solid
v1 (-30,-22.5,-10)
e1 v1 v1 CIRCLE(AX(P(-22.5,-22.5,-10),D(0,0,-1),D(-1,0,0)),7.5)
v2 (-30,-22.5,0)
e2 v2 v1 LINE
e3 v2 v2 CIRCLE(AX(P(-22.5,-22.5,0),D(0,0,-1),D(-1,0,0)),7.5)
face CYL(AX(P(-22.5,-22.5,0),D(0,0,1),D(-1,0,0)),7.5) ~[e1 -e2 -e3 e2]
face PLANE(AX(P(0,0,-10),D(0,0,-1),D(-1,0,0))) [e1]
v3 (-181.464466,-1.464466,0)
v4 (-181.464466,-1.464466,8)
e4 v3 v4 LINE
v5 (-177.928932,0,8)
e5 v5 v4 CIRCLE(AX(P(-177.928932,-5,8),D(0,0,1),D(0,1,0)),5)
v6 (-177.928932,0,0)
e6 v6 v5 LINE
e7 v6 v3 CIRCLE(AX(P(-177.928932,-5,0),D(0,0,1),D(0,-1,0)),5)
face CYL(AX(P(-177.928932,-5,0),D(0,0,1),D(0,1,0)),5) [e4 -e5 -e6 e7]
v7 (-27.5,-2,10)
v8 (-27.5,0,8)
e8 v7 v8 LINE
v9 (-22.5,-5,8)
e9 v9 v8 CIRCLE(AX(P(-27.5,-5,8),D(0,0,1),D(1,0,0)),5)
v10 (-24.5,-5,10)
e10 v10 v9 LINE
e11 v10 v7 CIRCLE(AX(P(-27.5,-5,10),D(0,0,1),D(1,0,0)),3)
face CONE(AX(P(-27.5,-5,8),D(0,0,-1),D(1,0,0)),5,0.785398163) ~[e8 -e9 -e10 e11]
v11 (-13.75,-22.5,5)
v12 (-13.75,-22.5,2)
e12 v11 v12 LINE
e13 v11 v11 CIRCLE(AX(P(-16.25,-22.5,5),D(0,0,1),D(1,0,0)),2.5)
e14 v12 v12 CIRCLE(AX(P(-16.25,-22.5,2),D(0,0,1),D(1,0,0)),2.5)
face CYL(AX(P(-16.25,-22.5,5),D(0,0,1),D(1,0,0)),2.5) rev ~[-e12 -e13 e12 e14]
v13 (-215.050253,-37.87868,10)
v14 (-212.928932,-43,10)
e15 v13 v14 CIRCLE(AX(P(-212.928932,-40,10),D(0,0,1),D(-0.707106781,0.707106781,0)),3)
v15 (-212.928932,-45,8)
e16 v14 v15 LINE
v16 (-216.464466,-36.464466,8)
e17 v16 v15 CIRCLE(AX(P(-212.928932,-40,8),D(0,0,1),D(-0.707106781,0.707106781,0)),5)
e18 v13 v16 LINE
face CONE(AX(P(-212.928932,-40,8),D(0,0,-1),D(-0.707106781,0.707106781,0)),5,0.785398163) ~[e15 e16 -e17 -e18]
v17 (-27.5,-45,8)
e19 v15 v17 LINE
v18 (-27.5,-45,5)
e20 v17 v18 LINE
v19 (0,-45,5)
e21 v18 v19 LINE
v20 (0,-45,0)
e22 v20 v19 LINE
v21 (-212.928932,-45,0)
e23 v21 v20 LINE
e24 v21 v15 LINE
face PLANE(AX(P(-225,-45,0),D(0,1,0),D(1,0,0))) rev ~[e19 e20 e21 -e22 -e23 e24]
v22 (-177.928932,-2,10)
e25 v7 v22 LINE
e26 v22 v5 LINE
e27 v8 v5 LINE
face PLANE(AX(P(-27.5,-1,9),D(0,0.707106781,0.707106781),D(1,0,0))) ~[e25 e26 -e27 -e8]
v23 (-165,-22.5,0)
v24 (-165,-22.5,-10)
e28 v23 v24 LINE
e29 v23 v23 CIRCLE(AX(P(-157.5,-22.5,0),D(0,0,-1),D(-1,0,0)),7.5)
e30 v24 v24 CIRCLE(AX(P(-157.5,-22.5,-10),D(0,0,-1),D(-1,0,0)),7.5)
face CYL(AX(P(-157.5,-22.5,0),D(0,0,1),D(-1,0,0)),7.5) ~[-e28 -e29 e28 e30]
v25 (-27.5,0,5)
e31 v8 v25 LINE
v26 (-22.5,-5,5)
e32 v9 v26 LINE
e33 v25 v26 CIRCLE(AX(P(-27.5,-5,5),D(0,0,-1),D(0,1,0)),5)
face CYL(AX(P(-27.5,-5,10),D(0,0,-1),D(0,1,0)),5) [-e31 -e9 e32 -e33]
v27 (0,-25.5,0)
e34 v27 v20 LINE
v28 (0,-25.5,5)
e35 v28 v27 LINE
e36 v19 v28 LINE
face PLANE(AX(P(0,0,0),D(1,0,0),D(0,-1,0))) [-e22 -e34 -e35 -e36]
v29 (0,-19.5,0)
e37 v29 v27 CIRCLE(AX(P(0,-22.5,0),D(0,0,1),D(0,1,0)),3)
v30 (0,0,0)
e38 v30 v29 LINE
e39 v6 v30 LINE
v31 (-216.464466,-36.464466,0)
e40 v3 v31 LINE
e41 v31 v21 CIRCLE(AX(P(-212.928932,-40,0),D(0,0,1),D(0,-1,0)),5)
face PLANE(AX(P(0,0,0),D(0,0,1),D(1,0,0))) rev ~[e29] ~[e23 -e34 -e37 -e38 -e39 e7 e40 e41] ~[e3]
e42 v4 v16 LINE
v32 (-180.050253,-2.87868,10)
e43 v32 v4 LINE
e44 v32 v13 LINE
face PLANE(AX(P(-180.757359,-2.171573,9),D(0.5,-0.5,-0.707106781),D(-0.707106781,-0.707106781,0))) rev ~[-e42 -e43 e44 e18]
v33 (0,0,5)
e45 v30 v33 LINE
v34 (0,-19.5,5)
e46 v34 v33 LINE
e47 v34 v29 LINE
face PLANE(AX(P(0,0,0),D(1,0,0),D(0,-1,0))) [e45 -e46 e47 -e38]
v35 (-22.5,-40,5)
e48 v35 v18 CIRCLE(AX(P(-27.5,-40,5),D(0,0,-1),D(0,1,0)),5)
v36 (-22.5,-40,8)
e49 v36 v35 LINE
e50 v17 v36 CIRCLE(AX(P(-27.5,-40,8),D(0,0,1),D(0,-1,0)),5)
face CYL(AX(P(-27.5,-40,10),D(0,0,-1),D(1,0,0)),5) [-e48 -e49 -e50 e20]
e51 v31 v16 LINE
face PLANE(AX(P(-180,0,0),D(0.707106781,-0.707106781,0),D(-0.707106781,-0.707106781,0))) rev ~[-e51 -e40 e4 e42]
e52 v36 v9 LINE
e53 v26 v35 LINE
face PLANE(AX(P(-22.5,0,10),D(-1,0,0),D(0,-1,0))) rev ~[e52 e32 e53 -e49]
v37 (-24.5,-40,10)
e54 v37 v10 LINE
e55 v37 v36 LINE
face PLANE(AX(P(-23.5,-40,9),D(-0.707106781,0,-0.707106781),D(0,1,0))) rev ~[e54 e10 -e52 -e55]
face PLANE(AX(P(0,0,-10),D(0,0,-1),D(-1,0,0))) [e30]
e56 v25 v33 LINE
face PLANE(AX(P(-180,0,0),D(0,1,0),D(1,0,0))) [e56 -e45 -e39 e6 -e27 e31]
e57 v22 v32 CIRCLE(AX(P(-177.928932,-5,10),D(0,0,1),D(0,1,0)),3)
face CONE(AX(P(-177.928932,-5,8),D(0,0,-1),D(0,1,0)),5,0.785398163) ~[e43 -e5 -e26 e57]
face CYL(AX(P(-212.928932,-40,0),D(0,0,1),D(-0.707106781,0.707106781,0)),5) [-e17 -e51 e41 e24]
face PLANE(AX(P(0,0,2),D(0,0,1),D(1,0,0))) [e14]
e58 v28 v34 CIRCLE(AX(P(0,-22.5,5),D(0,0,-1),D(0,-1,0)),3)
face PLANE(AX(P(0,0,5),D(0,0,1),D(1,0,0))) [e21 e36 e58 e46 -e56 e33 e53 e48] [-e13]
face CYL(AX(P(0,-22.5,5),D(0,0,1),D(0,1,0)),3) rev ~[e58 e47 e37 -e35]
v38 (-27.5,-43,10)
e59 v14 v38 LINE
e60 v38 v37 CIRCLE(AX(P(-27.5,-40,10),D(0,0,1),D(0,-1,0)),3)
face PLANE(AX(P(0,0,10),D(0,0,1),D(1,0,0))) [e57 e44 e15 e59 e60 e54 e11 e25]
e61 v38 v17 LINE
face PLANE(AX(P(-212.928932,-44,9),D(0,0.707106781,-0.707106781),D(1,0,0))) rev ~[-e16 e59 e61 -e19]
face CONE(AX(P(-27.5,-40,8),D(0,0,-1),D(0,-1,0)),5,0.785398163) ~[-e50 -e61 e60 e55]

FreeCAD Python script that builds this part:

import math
import FreeCAD as App
import Part
import Sketcher
Q = App.Units.Quantity


def edges_at(feature, points):
    """Names of the edges that pass closest to the given points."""
    edges = feature.Shape.Edges
    near = lambda p: min(range(len(edges)), key=lambda i: edges[i].distToShape(Part.Vertex(*p))[0])
    return sorted({f"Edge{near(p) + 1}" for p in points})


def add_polygon(sketch, points):
    """Adds a closed chain of lines whose ends are joined by coincident constraints."""
    first, n = sketch.GeometryCount, len(points)
    for a, b in zip(points, points[1:] + points[:1]):
        sketch.addGeometry(Part.LineSegment(App.Vector(*a, 0), App.Vector(*b, 0)), False)
    for i in range(n):
        sketch.addConstraint(Sketcher.Constraint("Coincident", first + i, 2, first + (i + 1) % n, 1))

doc = App.newDocument("Part")
body = doc.addObject("PartDesign::Body", "Body")

# Sketch on XY plane
sketch1 = doc.addObject("Sketcher::SketchObject", "Sketch")
body.addObject(sketch1)
sketch1.AttachmentSupport = (doc.XY_Plane, [""])
sketch1.MapMode = "FlatFace"
add_polygon(sketch1, [(0, 0), (-180, 0), (-225, -45), (0, -45)])  # lines 0-3
sketch1.addConstraint(Sketcher.Constraint("Horizontal", 0))
sketch1.addConstraint(Sketcher.Constraint("Horizontal", 2))
sketch1.addConstraint(Sketcher.Constraint("Vertical", 3))
sketch1.addConstraint(Sketcher.Constraint("Coincident", 3, 2, -1, 1))
sketch1.addConstraint(Sketcher.Constraint("DistanceX", 0, 2, 0, 1, Q("180 mm")))
sketch1.addConstraint(Sketcher.Constraint("DistanceX", 2, 1, 2, 2, Q("225 mm")))
sketch1.addConstraint(Sketcher.Constraint("DistanceY", 3, 1, 3, 2, Q("45 mm")))
pad1 = doc.addObject("PartDesign::Pad", "Pad")
body.addObject(pad1)
pad1.Profile = sketch1
pad1.Length = 10

# Sketch on XY plane
sketch2 = doc.addObject("Sketcher::SketchObject", "Sketch001")
body.addObject(sketch2)
sketch2.AttachmentSupport = (doc.XY_Plane, [""])
sketch2.MapMode = "FlatFace"
sketch2.AttachmentOffset = App.Placement(App.Vector(0, 0, 10), App.Rotation())
add_polygon(sketch2, [(0, -45), (0, 0), (-22, 0), (-22, -45)])  # lines 0-3
sketch2.addConstraint(Sketcher.Constraint("Vertical", 0))
sketch2.addConstraint(Sketcher.Constraint("Horizontal", 1))
sketch2.addConstraint(Sketcher.Constraint("Vertical", 2))
sketch2.addConstraint(Sketcher.Constraint("Horizontal", 3))
sketch2.addConstraint(Sketcher.Constraint("Coincident", 0, 2, -1, 1))
sketch2.addConstraint(Sketcher.Constraint("DistanceX", 1, 2, 1, 1, Q("22.5 mm")))
sketch2.addConstraint(Sketcher.Constraint("DistanceY", 0, 1, 0, 2, Q("45 mm")))
pocket1 = doc.addObject("PartDesign::Pocket", "Pocket")
body.addObject(pocket1)
pocket1.Profile = sketch2
pocket1.Length = 5

# Sketch on XY plane
sketch3 = doc.addObject("Sketcher::SketchObject", "Sketch002")
body.addObject(sketch3)
sketch3.AttachmentSupport = (doc.XY_Plane, [""])
sketch3.MapMode = "FlatFace"
sketch3.AttachmentOffset = App.Placement(App.Vector(0, 0, 5), App.Rotation())
sketch3.addGeometry(Part.LineSegment(App.Vector(0, -25.5, 0), App.Vector(0, -19.5, 0)), False)
sketch3.addGeometry(Part.ArcOfCircle(Part.Circle(App.Vector(0, -22.5, 0), App.Vector(0, 0, 1), 3), math.radians(90), math.radians(270)), False)
sketch3.addConstraint(Sketcher.Constraint("Coincident", 0, 1, 1, 2))
sketch3.addConstraint(Sketcher.Constraint("Coincident", 1, 1, 0, 2))
sketch3.addConstraint(Sketcher.Constraint("Vertical", 0))
sketch3.addConstraint(Sketcher.Constraint("PointOnObject", 1, 3, -2))
sketch3.addConstraint(Sketcher.Constraint("PointOnObject", 0, 1, -2))
sketch3.addConstraint(Sketcher.Constraint("Radius", 1, Q("3 mm")))
sketch3.addConstraint(Sketcher.Constraint("DistanceY", 1, 3, -1, 1, Q("22.5 mm")))
pocket2 = doc.addObject("PartDesign::Pocket", "Pocket001")
body.addObject(pocket2)
pocket2.Profile = sketch3
pocket2.Length = 5

# Sketch on XY plane
sketch4 = doc.addObject("Sketcher::SketchObject", "Sketch003")
body.addObject(sketch4)
sketch4.AttachmentSupport = (doc.XY_Plane, [""])
sketch4.MapMode = "FlatFace"
sketch4.addGeometry(Part.Circle(App.Vector(-22, -22, 0), App.Vector(0, 0, 1), 8), False)
sketch4.addGeometry(Part.Circle(App.Vector(-158, -22, 0), App.Vector(0, 0, 1), 8), False)
sketch4.addConstraint(Sketcher.Constraint("Equal", 0, 1))
sketch4.addConstraint(Sketcher.Constraint("Horizontal", 0, 3, 1, 3))
sketch4.addConstraint(Sketcher.Constraint("Diameter", 0, Q("15 mm")))
sketch4.addConstraint(Sketcher.Constraint("DistanceX", 1, 3, 0, 3, Q("135 mm")))
sketch4.addConstraint(Sketcher.Constraint("DistanceX", 0, 3, -1, 1, Q("22.5 mm")))
sketch4.addConstraint(Sketcher.Constraint("DistanceY", 0, 3, -1, 1, Q("22.5 mm")))
pad2 = doc.addObject("PartDesign::Pad", "Pad001")
body.addObject(pad2)
pad2.Profile = sketch4
pad2.Length = 10
pad2.Reversed = True
doc.recompute()

fillet = doc.addObject("PartDesign::Fillet", "Fillet")
body.addObject(fillet)
fillet.Base = (pad2, edges_at(pad2, [
    (-225, -45, 5),
    (-180, 0, 5),
    (-22.5, 0, 7.5),
    (-22.5, -45, 7.5),
]))
fillet.Radius = 5
doc.recompute()

chamfer = doc.addObject("PartDesign::Chamfer", "Chamfer")
body.addObject(chamfer)
chamfer.Base = (fillet, edges_at(fillet, [
    (-120.215, -45, 10),
    (-23.965, -43.535, 10),
    (-22.5, -22.5, 10),
    (-23.965, -1.464, 10),
    (-102.715, 0, 10),
    (-179.842, -0.381, 10),
    (-198.964, -18.965, 10),
    (-217.548, -41.913, 10),
]))
chamfer.Size = 2

# Sketch on XY plane
sketch5 = doc.addObject("Sketcher::SketchObject", "Sketch004")
body.addObject(sketch5)
sketch5.AttachmentSupport = (doc.XY_Plane, [""])
sketch5.MapMode = "FlatFace"
sketch5.AttachmentOffset = App.Placement(App.Vector(0, 0, 5), App.Rotation())
sketch5.addGeometry(Part.Circle(App.Vector(-16.2, -22.5, 0), App.Vector(0, 0, 1), 2.5), False)
sketch5.addConstraint(Sketcher.Constraint("Diameter", 0, Q("5 mm")))
sketch5.addConstraint(Sketcher.Constraint("DistanceY", 0, 3, -1, 1, Q("22.5 mm")))
sketch5.addConstraint(Sketcher.Constraint("DistanceX", 0, 3, -1, 1, Q("16.25 mm")))
pocket3 = doc.addObject("PartDesign::Pocket", "Pocket002")
body.addObject(pocket3)
pocket3.Profile = sketch5
pocket3.Length = 3

doc.recompute()
